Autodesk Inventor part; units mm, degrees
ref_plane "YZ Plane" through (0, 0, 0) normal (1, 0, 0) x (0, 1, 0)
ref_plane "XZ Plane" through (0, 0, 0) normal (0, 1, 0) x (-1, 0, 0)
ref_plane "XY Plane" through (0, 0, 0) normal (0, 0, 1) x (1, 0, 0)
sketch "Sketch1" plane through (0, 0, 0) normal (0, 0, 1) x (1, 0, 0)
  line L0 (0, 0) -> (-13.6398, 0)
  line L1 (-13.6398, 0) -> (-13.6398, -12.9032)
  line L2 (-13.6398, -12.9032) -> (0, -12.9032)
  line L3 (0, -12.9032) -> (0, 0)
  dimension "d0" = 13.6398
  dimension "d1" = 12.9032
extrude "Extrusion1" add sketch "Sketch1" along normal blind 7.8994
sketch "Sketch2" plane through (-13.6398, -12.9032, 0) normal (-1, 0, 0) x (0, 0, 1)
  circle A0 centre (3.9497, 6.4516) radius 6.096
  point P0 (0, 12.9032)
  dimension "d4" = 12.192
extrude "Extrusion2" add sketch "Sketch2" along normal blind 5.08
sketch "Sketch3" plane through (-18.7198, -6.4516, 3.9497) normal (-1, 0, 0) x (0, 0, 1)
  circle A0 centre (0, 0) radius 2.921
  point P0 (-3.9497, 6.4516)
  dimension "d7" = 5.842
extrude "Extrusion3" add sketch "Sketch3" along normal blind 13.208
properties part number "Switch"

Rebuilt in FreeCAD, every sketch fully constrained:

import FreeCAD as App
import Part
import Sketcher
from FreeCAD import Vector
Q = App.Units.Quantity


def add_polygon(sketch, points):
    """Adds a closed chain of lines whose ends are joined by coincident constraints."""
    first, n = sketch.GeometryCount, len(points)
    for a, b in zip(points, points[1:] + points[:1]):
        sketch.addGeometry(Part.LineSegment(App.Vector(*a, 0), App.Vector(*b, 0)), False)
    for i in range(n):
        sketch.addConstraint(Sketcher.Constraint("Coincident", first + i, 2, first + (i + 1) % n, 1))

doc = App.newDocument("Part")
body = doc.addObject("PartDesign::Body", "Body")

# Sketch on XY plane
sketch1 = body.newObject("Sketcher::SketchObject", "Sketch")
sketch1.AttachmentSupport = (doc.getObject("XY_Plane"), [""])
sketch1.MapMode = "FlatFace"
add_polygon(sketch1, [(0, -12.9032), (0, 0), (-13.6398, 0), (-13.6398, -12.9032)])  # lines 0-3
sketch1.addConstraint(Sketcher.Constraint("Vertical", 0))
sketch1.addConstraint(Sketcher.Constraint("Horizontal", 1))
sketch1.addConstraint(Sketcher.Constraint("Vertical", 2))
sketch1.addConstraint(Sketcher.Constraint("Horizontal", 3))
sketch1.addConstraint(Sketcher.Constraint("Coincident", 0, 2, -1, 1))
sketch1.addConstraint(Sketcher.Constraint("DistanceX", 1, 2, 1, 1, Q("0.537 in")))
sketch1.addConstraint(Sketcher.Constraint("DistanceY", 0, 1, 0, 2, Q("0.508 in")))
pad1 = body.newObject("PartDesign::Pad", "Pad")
pad1.Profile = sketch1
pad1.Length = Q("0.311 in")

# Sketch on YZ plane
sketch2 = body.newObject("Sketcher::SketchObject", "Sketch001")
sketch2.AttachmentSupport = (doc.getObject("YZ_Plane"), [""])
sketch2.MapMode = "FlatFace"
sketch2.AttachmentOffset = App.Placement(Vector(0, 0, -0.537 * 25.4), App.Rotation())
sketch2.addGeometry(Part.Circle(Vector(-6.4516, 3.9497, 0), Vector(0, 0, 1), 6.096), False)
sketch2.addConstraint(Sketcher.Constraint("Diameter", 0, Q("0.48 in")))
sketch2.addConstraint(Sketcher.Constraint("DistanceX", 0, 3, -1, 1, Q("0.254 in")))
sketch2.addConstraint(Sketcher.Constraint("DistanceY", -1, 1, 0, 3, Q("0.1555 in")))
pad2 = body.newObject("PartDesign::Pad", "Pad001")
pad2.Profile = sketch2
pad2.Length = Q("0.2 in")
pad2.Reversed = True

# Sketch on YZ plane
sketch3 = body.newObject("Sketcher::SketchObject", "Sketch002")
sketch3.AttachmentSupport = (doc.getObject("YZ_Plane"), [""])
sketch3.MapMode = "FlatFace"
sketch3.AttachmentOffset = App.Placement(Vector(0, 0, -0.737 * 25.4), App.Rotation())
sketch3.addGeometry(Part.Circle(Vector(-6.4516, 3.9497, 0), Vector(0, 0, 1), 2.921), False)
sketch3.addConstraint(Sketcher.Constraint("Diameter", 0, Q("0.23 in")))
sketch3.addConstraint(Sketcher.Constraint("DistanceX", 0, 3, -1, 1, Q("0.254 in")))
sketch3.addConstraint(Sketcher.Constraint("DistanceY", -1, 1, 0, 3, Q("0.1555 in")))
pad3 = body.newObject("PartDesign::Pad", "Pad002")
pad3.Profile = sketch3
pad3.Length = Q("0.52 in")
pad3.Reversed = True

doc.recompute()
